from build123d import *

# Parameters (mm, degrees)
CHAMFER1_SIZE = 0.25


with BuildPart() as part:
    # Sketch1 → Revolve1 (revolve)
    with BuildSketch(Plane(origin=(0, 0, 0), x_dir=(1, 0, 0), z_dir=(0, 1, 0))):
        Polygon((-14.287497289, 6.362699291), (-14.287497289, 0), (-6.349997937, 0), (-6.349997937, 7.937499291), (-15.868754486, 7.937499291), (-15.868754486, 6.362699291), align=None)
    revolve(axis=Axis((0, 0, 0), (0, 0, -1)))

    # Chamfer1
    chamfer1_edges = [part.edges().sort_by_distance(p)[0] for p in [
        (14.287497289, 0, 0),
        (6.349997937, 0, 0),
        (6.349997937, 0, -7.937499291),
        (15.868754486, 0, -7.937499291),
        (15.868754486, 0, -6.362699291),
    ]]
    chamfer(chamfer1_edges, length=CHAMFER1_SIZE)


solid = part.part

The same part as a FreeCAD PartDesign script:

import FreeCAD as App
import Part
import Sketcher
Q = App.Units.Quantity


def edges_at(feature, points):
    """Names of the edges that pass closest to the given points."""
    edges = feature.Shape.Edges
    near = lambda p: min(range(len(edges)), key=lambda i: edges[i].distToShape(Part.Vertex(*p))[0])
    return sorted({f"Edge{near(p) + 1}" for p in points})

doc = App.newDocument("Part")
body = doc.addObject("PartDesign::Body", "Body")

sketch1 = body.newObject("Sketcher::SketchObject", "Sketch")
sketch1.AttachmentSupport = (doc.getObject("XZ_Plane"), [""])
sketch1.MapMode = "FlatFace"
sketch1.addGeometry(Part.LineSegment(App.Vector(-14.3, -6.4, 0), App.Vector(-14.3, 0, 0)), False)
sketch1.addGeometry(Part.LineSegment(App.Vector(-14.3, 0, 0), App.Vector(-6.3, 0, 0)), False)
sketch1.addGeometry(Part.LineSegment(App.Vector(-6.3, 0, 0), App.Vector(-6.3, -7.9, 0)), False)
sketch1.addGeometry(Part.LineSegment(App.Vector(-6.3, -7.9, 0), App.Vector(-15.9, -7.9, 0)), False)
sketch1.addGeometry(Part.LineSegment(App.Vector(-15.9, -7.9, 0), App.Vector(-15.9, -6.4, 0)), False)
sketch1.addGeometry(Part.LineSegment(App.Vector(-15.9, -6.4, 0), App.Vector(-14.3, -6.4, 0)), False)
sketch1.addConstraint(Sketcher.Constraint("Coincident", 0, 2, 1, 1))
sketch1.addConstraint(Sketcher.Constraint("Coincident", 1, 2, 2, 1))
sketch1.addConstraint(Sketcher.Constraint("Coincident", 2, 2, 3, 1))
sketch1.addConstraint(Sketcher.Constraint("Coincident", 3, 2, 4, 1))
sketch1.addConstraint(Sketcher.Constraint("Coincident", 4, 2, 5, 1))
sketch1.addConstraint(Sketcher.Constraint("Coincident", 5, 2, 0, 1))
sketch1.addConstraint(Sketcher.Constraint("Vertical", 0))
sketch1.addConstraint(Sketcher.Constraint("Horizontal", 1))
sketch1.addConstraint(Sketcher.Constraint("Vertical", 2))
sketch1.addConstraint(Sketcher.Constraint("Horizontal", 3))
sketch1.addConstraint(Sketcher.Constraint("Vertical", 4))
sketch1.addConstraint(Sketcher.Constraint("Horizontal", 5))
sketch1.addConstraint(Sketcher.Constraint("PointOnObject", 0, 2, -1))
sketch1.addConstraint(Sketcher.Constraint("Equal", 1, 2))
sketch1.addConstraint(Sketcher.Constraint("DistanceX", 1, 1, 1, 2, Q("0.3125 in")))
sketch1.addConstraint(Sketcher.Constraint("DistanceY", 4, 1, 4, 2, Q("0.062 in")))
sketch1.addConstraint(Sketcher.Constraint("DistanceX", 1, 2, -1, 1, Q("0.2499999 in")))
sketch1.addConstraint(Sketcher.Constraint("DistanceX", 3, 2, 3, 1, 9.518757))
revolution = body.newObject("PartDesign::Revolution", "Revolution")
revolution.Profile = sketch1
revolution.ReferenceAxis = (sketch1, ["V_Axis"])
revolution.Angle = 360
doc.recompute()

chamfer = body.newObject("PartDesign::Chamfer", "Chamfer")
chamfer.Base = (revolution, edges_at(revolution, [
    (14.287, 0, 0),
    (6.35, 0, 0),
    (6.35, 0, -7.937),
    (15.869, 0, -7.937),
    (15.869, 0, -6.363),
]))
chamfer.Size = 0.25

doc.recompute()
